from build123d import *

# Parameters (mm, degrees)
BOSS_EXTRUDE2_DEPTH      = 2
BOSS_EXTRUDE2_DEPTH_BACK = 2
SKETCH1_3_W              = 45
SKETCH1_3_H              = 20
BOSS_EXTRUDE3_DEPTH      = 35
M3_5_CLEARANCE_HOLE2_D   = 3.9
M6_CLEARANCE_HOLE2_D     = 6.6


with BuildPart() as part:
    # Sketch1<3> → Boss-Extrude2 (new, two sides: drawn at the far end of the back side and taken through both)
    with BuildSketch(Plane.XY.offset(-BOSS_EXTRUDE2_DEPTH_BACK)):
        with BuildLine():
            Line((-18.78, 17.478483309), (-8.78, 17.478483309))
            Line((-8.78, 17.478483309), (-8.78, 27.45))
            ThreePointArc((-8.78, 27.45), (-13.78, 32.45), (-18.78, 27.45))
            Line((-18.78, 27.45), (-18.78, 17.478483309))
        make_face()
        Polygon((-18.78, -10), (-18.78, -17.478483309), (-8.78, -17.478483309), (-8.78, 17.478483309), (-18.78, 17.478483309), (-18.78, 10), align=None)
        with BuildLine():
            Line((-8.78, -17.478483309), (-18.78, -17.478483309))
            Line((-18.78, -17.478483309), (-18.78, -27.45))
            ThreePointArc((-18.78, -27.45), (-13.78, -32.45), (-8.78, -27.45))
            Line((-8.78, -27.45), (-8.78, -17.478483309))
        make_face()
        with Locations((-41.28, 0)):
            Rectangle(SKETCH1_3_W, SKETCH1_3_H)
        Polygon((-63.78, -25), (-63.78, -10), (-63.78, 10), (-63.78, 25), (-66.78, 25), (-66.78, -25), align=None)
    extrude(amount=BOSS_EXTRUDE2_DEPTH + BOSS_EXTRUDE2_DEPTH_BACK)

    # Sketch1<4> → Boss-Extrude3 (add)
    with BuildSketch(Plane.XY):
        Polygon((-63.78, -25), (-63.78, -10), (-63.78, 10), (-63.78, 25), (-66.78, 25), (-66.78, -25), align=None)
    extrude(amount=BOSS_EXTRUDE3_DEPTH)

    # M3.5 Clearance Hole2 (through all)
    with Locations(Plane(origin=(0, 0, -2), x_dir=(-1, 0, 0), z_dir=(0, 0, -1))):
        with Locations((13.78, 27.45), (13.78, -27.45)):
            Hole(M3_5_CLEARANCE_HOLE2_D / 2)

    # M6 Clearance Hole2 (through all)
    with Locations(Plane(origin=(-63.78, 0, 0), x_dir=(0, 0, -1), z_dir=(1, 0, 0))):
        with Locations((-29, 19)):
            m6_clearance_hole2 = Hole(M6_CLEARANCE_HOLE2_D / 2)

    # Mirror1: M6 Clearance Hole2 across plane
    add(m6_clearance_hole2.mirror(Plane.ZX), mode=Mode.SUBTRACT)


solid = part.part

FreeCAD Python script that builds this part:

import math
import FreeCAD as App
import Part
import Sketcher

V = App.Vector
Q = App.Units.Quantity


def add_polygon(sketch, points):
    """Adds a closed chain of lines whose ends are joined by coincident constraints."""
    first, n = sketch.GeometryCount, len(points)
    for a, b in zip(points, points[1:] + points[:1]):
        sketch.addGeometry(Part.LineSegment(App.Vector(*a, 0), App.Vector(*b, 0)), False)
    for i in range(n):
        sketch.addConstraint(Sketcher.Constraint("Coincident", first + i, 2, first + (i + 1) % n, 1))

doc = App.newDocument("Part")
params = doc.addObject("Spreadsheet::Sheet", "Params")
for row, (alias, value) in enumerate([
    ("sketch1_radius", "5 mm"),
    ("sketch1_width", "45 mm"),
    ("sketch1_width2", "3 mm"),
    ("sketch1_height", "15 mm"),
    ("sketch1_height2", "50 mm"),
    ("pad1_length", "2 mm"),
    ("pad1_length2", "2 mm"),
    ("sketch2_width", "3 mm"),
    ("sketch2_height", "50 mm"),
    ("pad2_length", "35 mm"),
    ("sketch3_diameter", "3.9 mm"),
    ("hole_diameter", "3.9 mm"),
    ("sketch4_diameter", "6.6 mm"),
    ("hole2_diameter", "6.6 mm"),
], start=1):
    params.set(f"A{row}", alias)
    params.set(f"B{row}", "=" + value)
    params.setAlias(f"B{row}", alias)

body = doc.addObject("PartDesign::Body", "Body")

# Sketch on XY plane
sketch1 = body.newObject("Sketcher::SketchObject", "Sketch")
sketch1.AttachmentSupport = (doc.getObject("XY_Plane"), [""])
sketch1.MapMode = "FlatFace"
sketch1.addGeometry([
    Part.ArcOfCircle(Part.Circle(V(-13.8, 27.4, 0), V(0, 0, 1), 5), math.radians(0), math.radians(180)),  # 0
    Part.LineSegment(V(-18.8, 27.4, 0), V(-18.8, 10, 0)),  # 1
    Part.LineSegment(V(-18.8, 10, 0), V(-63.8, 10, 0)),  # 2
    Part.LineSegment(V(-63.8, 10, 0), V(-63.8, 25, 0)),  # 3
    Part.LineSegment(V(-63.8, 25, 0), V(-66.8, 25, 0)),  # 4
    Part.LineSegment(V(-66.8, 25, 0), V(-66.8, -25, 0)),  # 5
    Part.LineSegment(V(-66.8, -25, 0), V(-63.8, -25, 0)),  # 6
    Part.LineSegment(V(-63.8, -25, 0), V(-63.8, -10, 0)),  # 7
    Part.LineSegment(V(-63.8, -10, 0), V(-18.8, -10, 0)),  # 8
    Part.LineSegment(V(-18.8, -10, 0), V(-18.8, -27.4, 0)),  # 9
    Part.ArcOfCircle(Part.Circle(V(-13.8, -27.4, 0), V(0, 0, 1), 5), math.radians(180), math.radians(360)),  # 10
    Part.LineSegment(V(-8.8, -27.4, 0), V(-8.8, 27.4, 0)),  # 11
], False)
sketch1.addConstraint([
    Sketcher.Constraint("Tangent", 0, 2, 1, 1),
    Sketcher.Constraint("Coincident", 1, 2, 2, 1),
    Sketcher.Constraint("Coincident", 2, 2, 3, 1),
    Sketcher.Constraint("Coincident", 3, 2, 4, 1),
    Sketcher.Constraint("Coincident", 4, 2, 5, 1),
    Sketcher.Constraint("Coincident", 5, 2, 6, 1),
    Sketcher.Constraint("Coincident", 6, 2, 7, 1),
    Sketcher.Constraint("Coincident", 7, 2, 8, 1),
    Sketcher.Constraint("Coincident", 8, 2, 9, 1),
    Sketcher.Constraint("Tangent", 9, 2, 10, 1),
    Sketcher.Constraint("Tangent", 10, 2, 11, 1),
    Sketcher.Constraint("Tangent", 11, 2, 0, 1),
    Sketcher.Constraint("Vertical", 1),
    Sketcher.Constraint("Horizontal", 2),
    Sketcher.Constraint("Vertical", 3),
    Sketcher.Constraint("Horizontal", 4),
    Sketcher.Constraint("Vertical", 5),
    Sketcher.Constraint("Horizontal", 6),
    Sketcher.Constraint("Vertical", 7),
    Sketcher.Constraint("Horizontal", 8),
    Sketcher.Constraint("Vertical", 9),
    Sketcher.Constraint("Vertical", 11),
    Sketcher.Constraint("Equal", 0, 10),
    Sketcher.Constraint("Symmetric", 3, 2, 6, 2, -1),
    Sketcher.Constraint("Equal", 3, 7),
    Sketcher.Constraint("Equal", 1, 9),
    Sketcher.Constraint("Radius", 0, Q("5 mm")),
    Sketcher.Constraint("DistanceX", 2, 2, 2, 1, Q("45 mm")),
    Sketcher.Constraint("DistanceX", 4, 2, 4, 1, Q("3 mm")),
    Sketcher.Constraint("DistanceY", 3, 1, 3, 2, Q("15 mm")),
    Sketcher.Constraint("DistanceY", 5, 2, 5, 1, Q("50 mm")),
    Sketcher.Constraint("DistanceY", 11, 1, 11, 2, Q("54.9 mm")),
    Sketcher.Constraint("DistanceX", 0, 3, -1, 1, Q("13.78 mm")),
])
sketch1.setExpression("Constraints[26]", "Params.sketch1_radius")
sketch1.setExpression("Constraints[27]", "Params.sketch1_width")
sketch1.setExpression("Constraints[28]", "Params.sketch1_width2")
sketch1.setExpression("Constraints[29]", "Params.sketch1_height")
sketch1.setExpression("Constraints[30]", "Params.sketch1_height2")
pad1 = body.newObject("PartDesign::Pad", "Pad")
pad1.Profile = sketch1
pad1.Type = "TwoLengths"
pad1.setExpression("Length", "Params.pad1_length")
pad1.setExpression("Length2", "Params.pad1_length2")

# Sketch on XY plane
sketch2 = body.newObject("Sketcher::SketchObject", "Sketch001")
sketch2.AttachmentSupport = (doc.getObject("XY_Plane"), [""])
sketch2.MapMode = "FlatFace"
add_polygon(sketch2, [(-63.8, -25), (-63.8, 25), (-66.8, 25), (-66.8, -25)])  # lines 0-3
sketch2.addConstraint([
    Sketcher.Constraint("Vertical", 0),
    Sketcher.Constraint("Horizontal", 1),
    Sketcher.Constraint("Vertical", 2),
    Sketcher.Constraint("Horizontal", 3),
    Sketcher.Constraint("DistanceX", 1, 2, 1, 1, Q("3 mm")),
    Sketcher.Constraint("DistanceY", 0, 1, 0, 2, Q("50 mm")),
    Sketcher.Constraint("DistanceY", -1, 1, 0, 2, Q("25 mm")),
    Sketcher.Constraint("DistanceX", 0, 2, -1, 1, Q("63.78 mm")),
])
sketch2.setExpression("Constraints[8]", "Params.sketch2_width")
sketch2.setExpression("Constraints[9]", "Params.sketch2_height")
pad2 = body.newObject("PartDesign::Pad", "Pad001")
pad2.Profile = sketch2
pad2.setExpression("Length", "Params.pad2_length")

# Sketch on XY plane
sketch3 = body.newObject("Sketcher::SketchObject", "Sketch002")
sketch3.AttachmentSupport = (doc.getObject("XY_Plane"), [""])
sketch3.MapMode = "FlatFace"
sketch3.AttachmentOffset = App.Placement(V(0, 0, -2), App.Rotation())
sketch3.addGeometry([
    Part.Circle(V(-13.8, 27.4, 0), V(0, 0, 1), 1.9),
    Part.Circle(V(-13.8, -27.4, 0), V(0, 0, 1), 1.9),
], False)
sketch3.addConstraint([
    Sketcher.Constraint("Equal", 0, 1),
    Sketcher.Constraint("Symmetric", 0, 3, 1, 3, -1),
    Sketcher.Constraint("Diameter", 0, Q("3.9 mm")),
    Sketcher.Constraint("DistanceY", 1, 3, 0, 3, Q("54.9 mm")),
    Sketcher.Constraint("DistanceX", 0, 3, -1, 1, Q("13.78 mm")),
])
sketch3.setExpression("Constraints[2]", "Params.sketch3_diameter")
doc.recompute()
hole = body.newObject("PartDesign::Hole", "Hole")
hole.Profile = sketch3
hole.ThreadType = "None"
hole.setExpression("Diameter", "Params.hole_diameter")
hole.DepthType = "ThroughAll"
hole.Reversed = True

# Sketch on YZ plane
sketch4 = body.newObject("Sketcher::SketchObject", "Sketch003")
sketch4.AttachmentSupport = (doc.getObject("YZ_Plane"), [""])
sketch4.MapMode = "FlatFace"
sketch4.AttachmentOffset = App.Placement(V(0, 0, -63.78), App.Rotation())
sketch4.addGeometry(Part.Circle(V(19, 29, 0), V(0, 0, 1), 3.3), False)
sketch4.addConstraint([
    Sketcher.Constraint("Diameter", 0, Q("6.6 mm")),
    Sketcher.Constraint("DistanceX", -1, 1, 0, 3, Q("19 mm")),
    Sketcher.Constraint("DistanceY", -1, 1, 0, 3, Q("29 mm")),
])
sketch4.setExpression("Constraints[0]", "Params.sketch4_diameter")
doc.recompute()
hole2 = body.newObject("PartDesign::Hole", "Hole001")
hole2.Profile = sketch4
hole2.ThreadType = "None"
hole2.setExpression("Diameter", "Params.hole2_diameter")
hole2.DepthType = "ThroughAll"
doc.recompute()

mirrored = body.newObject("PartDesign::Mirrored", "Mirrored")
mirrored.Originals = [hole2]
mirrored.MirrorPlane = (doc.getObject("XZ_Plane"), [""])
body.Tip = mirrored

doc.recompute()
